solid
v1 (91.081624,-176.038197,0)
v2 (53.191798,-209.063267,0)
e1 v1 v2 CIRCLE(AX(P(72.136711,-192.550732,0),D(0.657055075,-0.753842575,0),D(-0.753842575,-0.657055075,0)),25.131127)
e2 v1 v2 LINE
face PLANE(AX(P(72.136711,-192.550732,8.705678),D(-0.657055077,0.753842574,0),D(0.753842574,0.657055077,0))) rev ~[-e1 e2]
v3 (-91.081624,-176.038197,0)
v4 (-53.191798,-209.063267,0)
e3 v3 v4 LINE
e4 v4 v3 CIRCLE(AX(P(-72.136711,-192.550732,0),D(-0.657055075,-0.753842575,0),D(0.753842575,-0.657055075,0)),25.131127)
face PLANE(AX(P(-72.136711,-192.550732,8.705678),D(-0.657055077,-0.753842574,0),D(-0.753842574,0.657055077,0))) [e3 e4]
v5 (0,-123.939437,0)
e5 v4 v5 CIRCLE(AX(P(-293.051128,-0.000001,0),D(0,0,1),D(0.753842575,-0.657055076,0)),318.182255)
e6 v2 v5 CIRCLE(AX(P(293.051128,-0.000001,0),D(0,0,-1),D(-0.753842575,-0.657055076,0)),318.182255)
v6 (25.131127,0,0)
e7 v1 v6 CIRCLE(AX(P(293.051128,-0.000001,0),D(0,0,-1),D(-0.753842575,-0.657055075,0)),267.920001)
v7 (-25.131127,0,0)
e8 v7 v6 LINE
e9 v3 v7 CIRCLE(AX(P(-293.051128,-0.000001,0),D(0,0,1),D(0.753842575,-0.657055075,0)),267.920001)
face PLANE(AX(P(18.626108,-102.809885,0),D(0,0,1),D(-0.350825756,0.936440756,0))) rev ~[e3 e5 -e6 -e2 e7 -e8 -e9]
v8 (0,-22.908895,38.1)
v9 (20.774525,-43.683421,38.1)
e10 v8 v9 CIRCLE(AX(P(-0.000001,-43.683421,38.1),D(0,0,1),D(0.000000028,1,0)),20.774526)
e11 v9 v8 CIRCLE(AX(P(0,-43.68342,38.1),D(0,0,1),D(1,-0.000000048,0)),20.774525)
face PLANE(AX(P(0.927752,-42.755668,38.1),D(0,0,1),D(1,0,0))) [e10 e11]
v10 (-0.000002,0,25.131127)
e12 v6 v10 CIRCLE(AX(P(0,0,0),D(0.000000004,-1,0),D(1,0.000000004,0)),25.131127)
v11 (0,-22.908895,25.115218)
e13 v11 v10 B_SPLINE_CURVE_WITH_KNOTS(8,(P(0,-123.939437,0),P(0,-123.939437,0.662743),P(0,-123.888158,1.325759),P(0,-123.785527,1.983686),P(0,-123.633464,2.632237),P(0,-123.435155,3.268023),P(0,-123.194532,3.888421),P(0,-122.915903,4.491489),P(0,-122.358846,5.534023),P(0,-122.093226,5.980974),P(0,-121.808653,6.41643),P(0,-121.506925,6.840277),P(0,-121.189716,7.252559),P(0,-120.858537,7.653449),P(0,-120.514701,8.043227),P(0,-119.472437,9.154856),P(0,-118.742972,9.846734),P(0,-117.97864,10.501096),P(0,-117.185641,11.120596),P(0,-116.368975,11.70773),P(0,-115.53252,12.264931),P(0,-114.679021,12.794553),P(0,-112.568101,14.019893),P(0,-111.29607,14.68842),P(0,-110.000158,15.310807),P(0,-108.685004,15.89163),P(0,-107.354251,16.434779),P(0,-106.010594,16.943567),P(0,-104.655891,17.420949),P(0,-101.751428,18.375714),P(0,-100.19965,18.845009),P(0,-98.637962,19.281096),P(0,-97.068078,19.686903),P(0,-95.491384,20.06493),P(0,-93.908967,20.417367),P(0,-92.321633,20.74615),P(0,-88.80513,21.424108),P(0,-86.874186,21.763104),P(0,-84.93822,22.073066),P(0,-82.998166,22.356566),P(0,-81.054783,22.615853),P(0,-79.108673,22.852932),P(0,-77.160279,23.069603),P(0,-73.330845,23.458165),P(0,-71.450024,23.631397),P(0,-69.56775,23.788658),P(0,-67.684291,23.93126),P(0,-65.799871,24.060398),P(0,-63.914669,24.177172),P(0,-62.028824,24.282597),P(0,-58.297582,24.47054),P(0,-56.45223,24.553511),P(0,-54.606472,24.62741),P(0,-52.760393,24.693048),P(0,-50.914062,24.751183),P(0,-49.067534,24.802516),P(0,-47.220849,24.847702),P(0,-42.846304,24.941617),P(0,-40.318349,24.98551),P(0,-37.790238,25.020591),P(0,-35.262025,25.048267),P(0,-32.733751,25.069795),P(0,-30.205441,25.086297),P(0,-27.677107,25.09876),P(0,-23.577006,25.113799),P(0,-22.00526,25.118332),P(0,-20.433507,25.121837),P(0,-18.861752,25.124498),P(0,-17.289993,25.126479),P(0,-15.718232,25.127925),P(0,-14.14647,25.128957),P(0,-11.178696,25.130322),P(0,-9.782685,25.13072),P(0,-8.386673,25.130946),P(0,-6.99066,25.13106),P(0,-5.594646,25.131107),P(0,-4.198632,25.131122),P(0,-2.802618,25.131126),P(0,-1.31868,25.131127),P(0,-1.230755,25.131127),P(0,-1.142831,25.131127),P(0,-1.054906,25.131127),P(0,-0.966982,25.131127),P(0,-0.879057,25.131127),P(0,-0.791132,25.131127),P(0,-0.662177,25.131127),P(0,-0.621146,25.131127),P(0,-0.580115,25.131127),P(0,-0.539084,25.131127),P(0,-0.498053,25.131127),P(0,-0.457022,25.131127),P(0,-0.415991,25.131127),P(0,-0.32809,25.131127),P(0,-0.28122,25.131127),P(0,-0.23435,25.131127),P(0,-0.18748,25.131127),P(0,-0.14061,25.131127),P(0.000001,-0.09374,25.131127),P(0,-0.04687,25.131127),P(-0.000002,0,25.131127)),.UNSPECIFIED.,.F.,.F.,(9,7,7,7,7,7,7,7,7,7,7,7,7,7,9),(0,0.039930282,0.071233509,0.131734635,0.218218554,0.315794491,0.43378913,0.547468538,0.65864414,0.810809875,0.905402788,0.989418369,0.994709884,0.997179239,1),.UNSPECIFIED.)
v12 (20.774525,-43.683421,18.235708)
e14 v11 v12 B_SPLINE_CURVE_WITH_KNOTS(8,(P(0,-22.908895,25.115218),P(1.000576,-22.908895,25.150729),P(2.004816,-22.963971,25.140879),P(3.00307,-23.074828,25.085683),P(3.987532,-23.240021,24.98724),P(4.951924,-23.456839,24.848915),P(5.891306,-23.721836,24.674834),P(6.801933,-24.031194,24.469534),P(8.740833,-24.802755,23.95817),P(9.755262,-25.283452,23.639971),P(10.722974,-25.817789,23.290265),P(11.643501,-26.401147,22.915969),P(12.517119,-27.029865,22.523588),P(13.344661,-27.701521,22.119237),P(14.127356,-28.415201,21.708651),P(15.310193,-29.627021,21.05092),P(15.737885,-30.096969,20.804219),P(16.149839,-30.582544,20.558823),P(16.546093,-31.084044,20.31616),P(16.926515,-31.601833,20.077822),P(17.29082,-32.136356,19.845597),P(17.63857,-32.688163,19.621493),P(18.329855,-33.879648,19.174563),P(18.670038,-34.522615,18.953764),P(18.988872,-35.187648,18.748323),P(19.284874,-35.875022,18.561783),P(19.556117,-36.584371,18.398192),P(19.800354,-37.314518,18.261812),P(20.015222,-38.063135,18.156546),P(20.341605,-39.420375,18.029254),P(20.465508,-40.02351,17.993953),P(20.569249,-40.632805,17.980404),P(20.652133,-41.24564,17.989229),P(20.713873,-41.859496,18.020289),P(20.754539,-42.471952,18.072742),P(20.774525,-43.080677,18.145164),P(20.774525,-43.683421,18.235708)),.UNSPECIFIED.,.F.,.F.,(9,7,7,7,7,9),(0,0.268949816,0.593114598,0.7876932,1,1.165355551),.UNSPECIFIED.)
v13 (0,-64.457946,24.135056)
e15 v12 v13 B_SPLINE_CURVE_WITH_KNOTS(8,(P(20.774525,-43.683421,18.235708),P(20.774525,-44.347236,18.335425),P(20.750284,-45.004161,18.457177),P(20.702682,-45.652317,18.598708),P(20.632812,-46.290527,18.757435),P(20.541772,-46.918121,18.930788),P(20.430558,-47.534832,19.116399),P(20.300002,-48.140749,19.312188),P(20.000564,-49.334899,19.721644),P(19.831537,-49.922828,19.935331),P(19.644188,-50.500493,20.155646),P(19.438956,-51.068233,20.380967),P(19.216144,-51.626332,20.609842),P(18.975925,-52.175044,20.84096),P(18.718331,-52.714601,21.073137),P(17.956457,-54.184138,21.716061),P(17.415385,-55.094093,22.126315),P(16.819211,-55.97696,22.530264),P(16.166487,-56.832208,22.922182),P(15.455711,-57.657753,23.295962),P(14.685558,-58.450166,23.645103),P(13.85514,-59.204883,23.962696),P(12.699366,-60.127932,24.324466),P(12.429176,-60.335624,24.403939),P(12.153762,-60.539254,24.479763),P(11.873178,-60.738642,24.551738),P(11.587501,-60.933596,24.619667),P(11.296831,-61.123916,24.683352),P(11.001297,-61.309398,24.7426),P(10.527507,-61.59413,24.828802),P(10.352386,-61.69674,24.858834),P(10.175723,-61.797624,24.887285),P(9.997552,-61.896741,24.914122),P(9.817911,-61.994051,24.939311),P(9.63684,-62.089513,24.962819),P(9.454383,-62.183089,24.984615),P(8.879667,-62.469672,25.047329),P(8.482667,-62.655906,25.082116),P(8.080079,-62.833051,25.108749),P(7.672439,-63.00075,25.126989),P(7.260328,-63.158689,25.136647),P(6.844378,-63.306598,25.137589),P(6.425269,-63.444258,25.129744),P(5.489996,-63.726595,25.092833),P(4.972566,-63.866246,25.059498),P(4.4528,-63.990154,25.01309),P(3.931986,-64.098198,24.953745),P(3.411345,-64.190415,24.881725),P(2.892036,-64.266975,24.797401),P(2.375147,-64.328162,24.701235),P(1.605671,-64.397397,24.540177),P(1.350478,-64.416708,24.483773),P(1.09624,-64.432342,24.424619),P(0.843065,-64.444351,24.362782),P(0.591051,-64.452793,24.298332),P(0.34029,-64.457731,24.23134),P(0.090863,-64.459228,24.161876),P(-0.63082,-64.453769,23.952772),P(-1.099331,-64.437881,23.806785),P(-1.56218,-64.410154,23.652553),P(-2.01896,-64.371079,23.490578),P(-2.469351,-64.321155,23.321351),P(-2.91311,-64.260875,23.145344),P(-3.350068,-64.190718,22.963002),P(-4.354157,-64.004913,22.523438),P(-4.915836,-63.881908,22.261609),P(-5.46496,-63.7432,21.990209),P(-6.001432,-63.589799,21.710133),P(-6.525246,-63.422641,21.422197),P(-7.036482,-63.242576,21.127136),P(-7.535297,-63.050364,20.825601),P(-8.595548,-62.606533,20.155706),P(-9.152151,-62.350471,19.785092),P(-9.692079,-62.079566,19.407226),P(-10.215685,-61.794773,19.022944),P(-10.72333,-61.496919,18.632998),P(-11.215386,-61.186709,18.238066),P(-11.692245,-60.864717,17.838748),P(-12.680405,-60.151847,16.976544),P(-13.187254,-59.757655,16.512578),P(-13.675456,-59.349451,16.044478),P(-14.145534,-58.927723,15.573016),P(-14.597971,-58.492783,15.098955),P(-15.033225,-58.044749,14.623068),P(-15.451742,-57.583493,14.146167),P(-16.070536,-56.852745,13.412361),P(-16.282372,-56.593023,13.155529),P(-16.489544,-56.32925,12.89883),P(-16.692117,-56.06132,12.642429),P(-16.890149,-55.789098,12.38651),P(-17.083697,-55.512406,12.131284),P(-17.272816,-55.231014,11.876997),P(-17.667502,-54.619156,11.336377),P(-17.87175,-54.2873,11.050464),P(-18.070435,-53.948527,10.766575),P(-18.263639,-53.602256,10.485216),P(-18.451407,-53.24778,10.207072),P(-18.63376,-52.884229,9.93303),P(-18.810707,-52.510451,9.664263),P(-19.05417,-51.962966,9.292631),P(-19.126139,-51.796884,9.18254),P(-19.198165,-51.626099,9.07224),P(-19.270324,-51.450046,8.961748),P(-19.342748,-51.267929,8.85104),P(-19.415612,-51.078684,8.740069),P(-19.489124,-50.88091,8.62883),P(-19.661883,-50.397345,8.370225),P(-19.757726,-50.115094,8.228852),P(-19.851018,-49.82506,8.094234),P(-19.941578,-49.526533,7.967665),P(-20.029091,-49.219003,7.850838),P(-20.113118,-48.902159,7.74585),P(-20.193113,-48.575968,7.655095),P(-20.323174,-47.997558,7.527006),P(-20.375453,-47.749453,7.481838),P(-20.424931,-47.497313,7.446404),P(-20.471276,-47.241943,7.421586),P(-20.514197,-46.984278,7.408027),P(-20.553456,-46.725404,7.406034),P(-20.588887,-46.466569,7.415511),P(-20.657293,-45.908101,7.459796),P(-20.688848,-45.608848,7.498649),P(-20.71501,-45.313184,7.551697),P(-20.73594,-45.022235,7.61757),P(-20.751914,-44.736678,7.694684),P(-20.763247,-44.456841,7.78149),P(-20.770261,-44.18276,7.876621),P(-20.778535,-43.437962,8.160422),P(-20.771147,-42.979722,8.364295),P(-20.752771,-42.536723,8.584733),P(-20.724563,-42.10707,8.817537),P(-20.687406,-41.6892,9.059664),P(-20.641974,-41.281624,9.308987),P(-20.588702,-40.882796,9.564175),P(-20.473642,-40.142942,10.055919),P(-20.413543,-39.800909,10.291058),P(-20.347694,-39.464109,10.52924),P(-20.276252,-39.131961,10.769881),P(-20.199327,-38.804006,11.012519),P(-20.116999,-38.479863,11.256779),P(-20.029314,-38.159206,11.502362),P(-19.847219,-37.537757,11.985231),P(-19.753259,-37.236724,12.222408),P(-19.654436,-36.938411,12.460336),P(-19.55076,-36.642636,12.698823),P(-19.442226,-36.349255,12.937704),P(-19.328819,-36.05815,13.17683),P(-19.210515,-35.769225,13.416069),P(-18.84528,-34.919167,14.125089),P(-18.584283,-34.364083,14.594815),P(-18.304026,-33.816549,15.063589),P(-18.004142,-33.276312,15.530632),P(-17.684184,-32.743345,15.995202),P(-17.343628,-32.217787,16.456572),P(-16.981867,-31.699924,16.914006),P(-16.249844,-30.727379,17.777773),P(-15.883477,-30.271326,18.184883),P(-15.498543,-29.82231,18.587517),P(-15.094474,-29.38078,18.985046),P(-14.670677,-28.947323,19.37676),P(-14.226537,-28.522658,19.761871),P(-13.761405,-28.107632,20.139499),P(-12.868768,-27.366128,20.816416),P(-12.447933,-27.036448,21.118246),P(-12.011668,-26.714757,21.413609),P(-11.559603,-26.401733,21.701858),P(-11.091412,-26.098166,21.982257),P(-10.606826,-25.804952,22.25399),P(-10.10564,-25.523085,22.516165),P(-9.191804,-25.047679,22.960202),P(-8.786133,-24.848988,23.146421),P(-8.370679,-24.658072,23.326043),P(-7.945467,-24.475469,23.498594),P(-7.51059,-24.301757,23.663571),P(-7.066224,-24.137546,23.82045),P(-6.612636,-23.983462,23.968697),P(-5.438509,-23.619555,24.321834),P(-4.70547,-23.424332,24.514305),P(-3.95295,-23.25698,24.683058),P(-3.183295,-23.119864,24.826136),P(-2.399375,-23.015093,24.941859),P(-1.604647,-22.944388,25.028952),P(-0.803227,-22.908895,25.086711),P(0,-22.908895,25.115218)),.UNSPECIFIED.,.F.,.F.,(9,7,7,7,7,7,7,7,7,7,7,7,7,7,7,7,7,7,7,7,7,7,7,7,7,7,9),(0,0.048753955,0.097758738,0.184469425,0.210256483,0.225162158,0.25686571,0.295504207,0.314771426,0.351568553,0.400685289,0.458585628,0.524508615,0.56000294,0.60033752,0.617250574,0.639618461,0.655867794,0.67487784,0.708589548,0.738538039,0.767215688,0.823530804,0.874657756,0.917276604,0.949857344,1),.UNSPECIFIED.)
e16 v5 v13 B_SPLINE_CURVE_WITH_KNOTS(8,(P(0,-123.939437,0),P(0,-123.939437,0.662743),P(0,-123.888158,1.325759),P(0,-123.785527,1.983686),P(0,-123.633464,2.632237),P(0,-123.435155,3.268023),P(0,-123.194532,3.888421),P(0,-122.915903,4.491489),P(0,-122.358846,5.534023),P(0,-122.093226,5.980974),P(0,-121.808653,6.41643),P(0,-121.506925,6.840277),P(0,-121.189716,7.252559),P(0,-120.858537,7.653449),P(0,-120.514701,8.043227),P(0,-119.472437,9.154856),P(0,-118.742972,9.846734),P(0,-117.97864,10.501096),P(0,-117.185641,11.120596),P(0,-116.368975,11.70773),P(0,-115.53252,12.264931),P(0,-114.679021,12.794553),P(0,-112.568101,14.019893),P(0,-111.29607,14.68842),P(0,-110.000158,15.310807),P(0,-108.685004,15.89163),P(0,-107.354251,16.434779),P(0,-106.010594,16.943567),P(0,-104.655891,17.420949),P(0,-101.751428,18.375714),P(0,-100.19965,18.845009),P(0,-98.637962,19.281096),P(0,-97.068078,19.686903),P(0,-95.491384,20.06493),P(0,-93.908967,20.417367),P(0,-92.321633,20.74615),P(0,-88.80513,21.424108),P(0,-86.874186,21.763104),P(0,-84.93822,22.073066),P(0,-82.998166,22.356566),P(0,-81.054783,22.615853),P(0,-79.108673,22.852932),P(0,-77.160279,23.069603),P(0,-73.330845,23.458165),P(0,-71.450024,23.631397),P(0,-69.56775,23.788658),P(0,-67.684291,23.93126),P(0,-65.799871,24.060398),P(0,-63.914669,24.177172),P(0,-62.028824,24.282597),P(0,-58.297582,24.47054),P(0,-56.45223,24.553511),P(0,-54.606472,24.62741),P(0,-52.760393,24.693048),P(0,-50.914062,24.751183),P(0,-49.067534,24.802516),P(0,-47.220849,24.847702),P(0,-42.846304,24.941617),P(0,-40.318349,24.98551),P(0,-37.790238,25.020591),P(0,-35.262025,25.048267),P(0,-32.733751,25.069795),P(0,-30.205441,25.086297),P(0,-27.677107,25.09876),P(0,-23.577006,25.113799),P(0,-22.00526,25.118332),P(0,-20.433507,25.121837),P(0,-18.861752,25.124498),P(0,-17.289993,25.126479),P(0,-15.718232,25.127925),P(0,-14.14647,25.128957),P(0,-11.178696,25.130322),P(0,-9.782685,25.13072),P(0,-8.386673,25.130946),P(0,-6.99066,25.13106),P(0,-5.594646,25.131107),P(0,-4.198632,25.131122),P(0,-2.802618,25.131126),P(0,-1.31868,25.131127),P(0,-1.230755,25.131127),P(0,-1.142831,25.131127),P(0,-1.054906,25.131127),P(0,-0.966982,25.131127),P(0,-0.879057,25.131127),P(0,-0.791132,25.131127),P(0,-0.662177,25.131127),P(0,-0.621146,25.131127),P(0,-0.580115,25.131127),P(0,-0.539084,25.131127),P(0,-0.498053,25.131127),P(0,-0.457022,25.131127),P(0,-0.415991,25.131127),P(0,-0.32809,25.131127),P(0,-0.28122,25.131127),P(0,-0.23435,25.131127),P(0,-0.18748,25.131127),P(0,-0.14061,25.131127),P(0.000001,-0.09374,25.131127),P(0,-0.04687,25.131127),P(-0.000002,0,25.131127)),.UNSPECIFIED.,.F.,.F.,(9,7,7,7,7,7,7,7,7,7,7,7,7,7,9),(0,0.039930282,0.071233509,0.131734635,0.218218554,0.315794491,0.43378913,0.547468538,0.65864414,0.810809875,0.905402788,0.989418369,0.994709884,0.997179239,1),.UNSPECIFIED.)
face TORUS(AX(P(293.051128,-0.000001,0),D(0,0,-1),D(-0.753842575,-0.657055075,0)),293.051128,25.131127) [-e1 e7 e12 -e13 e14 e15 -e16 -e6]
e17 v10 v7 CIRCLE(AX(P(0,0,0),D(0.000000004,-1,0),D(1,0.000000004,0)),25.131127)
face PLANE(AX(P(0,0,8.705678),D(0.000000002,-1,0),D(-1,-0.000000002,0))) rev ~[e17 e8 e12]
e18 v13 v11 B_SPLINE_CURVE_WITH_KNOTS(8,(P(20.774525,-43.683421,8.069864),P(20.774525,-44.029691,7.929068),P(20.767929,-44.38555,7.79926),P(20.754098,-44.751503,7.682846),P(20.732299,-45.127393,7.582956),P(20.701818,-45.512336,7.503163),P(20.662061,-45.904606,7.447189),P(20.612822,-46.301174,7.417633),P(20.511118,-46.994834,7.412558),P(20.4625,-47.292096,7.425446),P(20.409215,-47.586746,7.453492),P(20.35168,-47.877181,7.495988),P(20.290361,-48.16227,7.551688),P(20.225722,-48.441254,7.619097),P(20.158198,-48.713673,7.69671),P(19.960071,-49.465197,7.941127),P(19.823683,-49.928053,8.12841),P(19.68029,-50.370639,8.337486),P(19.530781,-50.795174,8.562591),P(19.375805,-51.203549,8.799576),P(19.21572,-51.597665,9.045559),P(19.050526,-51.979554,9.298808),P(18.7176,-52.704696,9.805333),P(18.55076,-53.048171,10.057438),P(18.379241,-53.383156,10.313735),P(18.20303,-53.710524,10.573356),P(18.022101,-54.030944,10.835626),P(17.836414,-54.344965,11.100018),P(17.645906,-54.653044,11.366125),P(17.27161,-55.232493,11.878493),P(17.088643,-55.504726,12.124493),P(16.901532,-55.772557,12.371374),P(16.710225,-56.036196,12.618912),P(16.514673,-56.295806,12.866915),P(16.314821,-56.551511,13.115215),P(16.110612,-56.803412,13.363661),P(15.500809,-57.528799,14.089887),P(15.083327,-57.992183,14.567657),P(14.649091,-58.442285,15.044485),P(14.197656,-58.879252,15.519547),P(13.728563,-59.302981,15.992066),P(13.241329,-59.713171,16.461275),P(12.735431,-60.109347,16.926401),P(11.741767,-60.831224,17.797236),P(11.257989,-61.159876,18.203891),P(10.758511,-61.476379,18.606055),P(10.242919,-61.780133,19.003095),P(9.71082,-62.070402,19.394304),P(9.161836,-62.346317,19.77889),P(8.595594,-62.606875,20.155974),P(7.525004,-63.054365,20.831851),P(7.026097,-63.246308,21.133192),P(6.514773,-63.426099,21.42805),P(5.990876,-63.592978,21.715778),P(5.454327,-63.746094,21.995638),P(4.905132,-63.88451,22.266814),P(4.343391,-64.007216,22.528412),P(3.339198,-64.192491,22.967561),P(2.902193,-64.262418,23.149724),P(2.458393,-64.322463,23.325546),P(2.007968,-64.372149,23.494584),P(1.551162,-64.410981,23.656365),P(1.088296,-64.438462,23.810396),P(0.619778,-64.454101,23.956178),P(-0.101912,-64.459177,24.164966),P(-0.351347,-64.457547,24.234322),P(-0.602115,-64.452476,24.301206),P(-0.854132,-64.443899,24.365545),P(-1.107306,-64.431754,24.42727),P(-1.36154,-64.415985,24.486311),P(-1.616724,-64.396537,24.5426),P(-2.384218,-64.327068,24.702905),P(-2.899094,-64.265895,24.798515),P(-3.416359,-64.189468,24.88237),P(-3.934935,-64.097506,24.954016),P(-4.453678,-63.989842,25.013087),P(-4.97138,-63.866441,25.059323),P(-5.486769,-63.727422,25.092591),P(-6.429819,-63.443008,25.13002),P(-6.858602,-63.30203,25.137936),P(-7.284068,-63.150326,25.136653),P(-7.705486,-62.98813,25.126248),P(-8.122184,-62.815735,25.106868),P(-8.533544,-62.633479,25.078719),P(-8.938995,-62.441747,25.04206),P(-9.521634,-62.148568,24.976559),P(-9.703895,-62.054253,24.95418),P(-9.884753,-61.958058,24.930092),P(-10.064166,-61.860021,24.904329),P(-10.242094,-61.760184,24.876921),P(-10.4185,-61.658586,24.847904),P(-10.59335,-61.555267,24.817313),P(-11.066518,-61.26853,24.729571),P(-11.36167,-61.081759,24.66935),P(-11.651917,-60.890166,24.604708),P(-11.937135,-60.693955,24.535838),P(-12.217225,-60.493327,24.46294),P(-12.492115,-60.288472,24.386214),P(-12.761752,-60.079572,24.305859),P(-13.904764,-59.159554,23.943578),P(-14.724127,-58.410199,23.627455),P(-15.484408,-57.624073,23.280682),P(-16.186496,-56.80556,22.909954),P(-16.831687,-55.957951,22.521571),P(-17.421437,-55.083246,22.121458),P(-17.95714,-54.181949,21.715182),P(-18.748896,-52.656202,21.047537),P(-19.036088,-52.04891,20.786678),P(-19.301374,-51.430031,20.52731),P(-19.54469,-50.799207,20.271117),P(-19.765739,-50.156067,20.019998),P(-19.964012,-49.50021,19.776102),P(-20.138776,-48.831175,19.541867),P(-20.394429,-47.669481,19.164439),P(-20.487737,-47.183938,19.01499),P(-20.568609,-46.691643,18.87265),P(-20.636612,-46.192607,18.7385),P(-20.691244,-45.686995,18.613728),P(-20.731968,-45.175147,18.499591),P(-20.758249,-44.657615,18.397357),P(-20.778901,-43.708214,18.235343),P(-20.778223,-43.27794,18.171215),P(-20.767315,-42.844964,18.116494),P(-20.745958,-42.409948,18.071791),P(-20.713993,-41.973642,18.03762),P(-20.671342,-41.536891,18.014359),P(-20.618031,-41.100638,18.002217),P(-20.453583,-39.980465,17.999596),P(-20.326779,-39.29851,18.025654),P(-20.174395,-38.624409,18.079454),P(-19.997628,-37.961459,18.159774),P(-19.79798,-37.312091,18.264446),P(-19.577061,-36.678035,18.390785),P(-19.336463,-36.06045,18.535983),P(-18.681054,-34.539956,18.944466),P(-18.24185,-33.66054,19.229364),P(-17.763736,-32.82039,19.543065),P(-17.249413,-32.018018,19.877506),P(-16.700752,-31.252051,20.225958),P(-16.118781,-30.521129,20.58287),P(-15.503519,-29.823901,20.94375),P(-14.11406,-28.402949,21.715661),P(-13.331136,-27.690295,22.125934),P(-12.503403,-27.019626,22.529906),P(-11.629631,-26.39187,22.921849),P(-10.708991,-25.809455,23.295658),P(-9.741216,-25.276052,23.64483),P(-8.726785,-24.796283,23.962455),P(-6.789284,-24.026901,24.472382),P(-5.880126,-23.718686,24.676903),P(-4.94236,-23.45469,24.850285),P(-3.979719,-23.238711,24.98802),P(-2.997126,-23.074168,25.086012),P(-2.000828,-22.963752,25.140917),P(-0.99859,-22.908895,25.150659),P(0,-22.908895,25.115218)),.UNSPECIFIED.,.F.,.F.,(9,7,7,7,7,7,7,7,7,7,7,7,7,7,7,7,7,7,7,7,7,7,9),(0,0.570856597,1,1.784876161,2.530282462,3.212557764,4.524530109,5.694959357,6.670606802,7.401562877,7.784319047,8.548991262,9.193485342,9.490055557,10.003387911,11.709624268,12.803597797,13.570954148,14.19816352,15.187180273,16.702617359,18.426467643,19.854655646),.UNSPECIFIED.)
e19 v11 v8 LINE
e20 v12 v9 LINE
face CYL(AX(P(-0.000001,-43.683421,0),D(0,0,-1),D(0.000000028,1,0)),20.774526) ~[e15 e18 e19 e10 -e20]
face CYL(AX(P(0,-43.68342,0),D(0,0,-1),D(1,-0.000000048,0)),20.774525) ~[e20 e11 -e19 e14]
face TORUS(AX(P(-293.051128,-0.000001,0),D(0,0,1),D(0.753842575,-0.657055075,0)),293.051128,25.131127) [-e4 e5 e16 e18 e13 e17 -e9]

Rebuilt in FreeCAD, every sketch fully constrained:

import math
import FreeCAD as App
import Part
import Sketcher

V = App.Vector
Q = App.Units.Quantity

doc = App.newDocument("Part")
body = doc.addObject("PartDesign::Body", "Body")

# Sketch on XY plane
sketch1 = doc.addObject("Sketcher::SketchObject", "Sketch")
body.addObject(sketch1)
sketch1.AttachmentSupport = (doc.XY_Plane, [""])
sketch1.MapMode = "FlatFace"
sketch1.addGeometry([
    Part.ArcOfCircle(Part.Circle(V(0, -44, 0), V(0, 0, 1), 21), math.radians(90), math.radians(360)),
    Part.ArcOfCircle(Part.Circle(V(0, -44, 0), V(0, 0, 1), 21), math.radians(0), math.radians(90)),
], False)
sketch1.addConstraint([
    Sketcher.Constraint("Tangent", 0, 1, 1, 2),
    Sketcher.Constraint("Coincident", 1, 1, 0, 2),
    Sketcher.Constraint("PointOnObject", 0, 3, -2),
    Sketcher.Constraint("PointOnObject", 0, 1, -2),
    Sketcher.Constraint("Horizontal", 0, 3, 1, 1),
    Sketcher.Constraint("Radius", 0, 20.774526),
    Sketcher.Constraint("DistanceY", 0, 3, -1, 1, 43.683421),
])
pad1 = doc.addObject("PartDesign::Pad", "Pad")
body.addObject(pad1)
pad1.Profile = sketch1
pad1.Length = Q("1.5 in")

# Sketch on XZ plane
sketch2 = doc.addObject("Sketcher::SketchObject", "Sketch001")
body.addObject(sketch2)
sketch2.AttachmentSupport = (doc.XZ_Plane, [""])
sketch2.MapMode = "FlatFace"
sketch2.addGeometry([
    Part.LineSegment(V(-25, 0, 0), V(25, 0, 0)),
    Part.ArcOfCircle(Part.Circle(V(0, 0, 0), V(0, 0, 1), 25), math.radians(0), math.radians(180)),
], False)
sketch2.addConstraint([
    Sketcher.Constraint("Coincident", 0, 1, 1, 2),
    Sketcher.Constraint("Coincident", 1, 1, 0, 2),
    Sketcher.Constraint("Horizontal", 0),
    Sketcher.Constraint("Coincident", 1, 3, -1, 1),
    Sketcher.Constraint("PointOnObject", 0, 1, -1),
    Sketcher.Constraint("Radius", 1, 25.131127),
])

# Sketch on XY plane
sketch3 = doc.addObject("Sketcher::SketchObject", "Sketch002")
body.addObject(sketch3)
sketch3.AttachmentSupport = (doc.XY_Plane, [""])
sketch3.MapMode = "FlatFace"
sketch3.addGeometry(Part.ArcOfCircle(Part.Circle(V(-293, 0, 0), V(0, 0, 1), 293), math.radians(-41), math.radians(0)), False)
sketch3.addConstraint([
    Sketcher.Constraint("Coincident", 0, 2, -1, 1),
    Sketcher.Constraint("PointOnObject", 0, 3, -1),
    Sketcher.Constraint("Radius", 0, 293.051128),
    Sketcher.Constraint("DistanceX", 0, 1, -1, 1, 72.136711),
])
doc.recompute()

additivepipe = doc.addObject("PartDesign::AdditivePipe", "AdditivePipe")
body.addObject(additivepipe)
additivepipe.Profile = sketch2
additivepipe.Spine = (sketch3, ["Edge1"])

# Sketch on XZ plane
sketch4 = doc.addObject("Sketcher::SketchObject", "Sketch003")
body.addObject(sketch4)
sketch4.AttachmentSupport = (doc.XZ_Plane, [""])
sketch4.MapMode = "FlatFace"
sketch4.addGeometry([
    Part.LineSegment(V(25, 0, 0), V(-25, 0, 0)),
    Part.ArcOfCircle(Part.Circle(V(0, 0, 0), V(0, 0, 1), 25), math.radians(0), math.radians(180)),
], False)
sketch4.addConstraint([
    Sketcher.Constraint("Coincident", 0, 1, 1, 1),
    Sketcher.Constraint("Coincident", 1, 2, 0, 2),
    Sketcher.Constraint("Horizontal", 0),
    Sketcher.Constraint("Coincident", 1, 3, -1, 1),
    Sketcher.Constraint("PointOnObject", 0, 1, -1),
    Sketcher.Constraint("Radius", 1, 25.131127),
])

# Sketch on XY plane
sketch5 = doc.addObject("Sketcher::SketchObject", "Sketch004")
body.addObject(sketch5)
sketch5.AttachmentSupport = (doc.XY_Plane, [""])
sketch5.MapMode = "FlatFace"
sketch5.addGeometry(Part.ArcOfCircle(Part.Circle(V(293, 0, 0), V(0, 0, 1), 293), math.radians(180), math.radians(221)), False)
sketch5.addConstraint([
    Sketcher.Constraint("Coincident", 0, 1, -1, 1),
    Sketcher.Constraint("PointOnObject", 0, 3, -1),
    Sketcher.Constraint("Radius", 0, 293.051128),
    Sketcher.Constraint("DistanceX", -1, 1, 0, 2, 72.136711),
])
doc.recompute()

additivepipe2 = doc.addObject("PartDesign::AdditivePipe", "AdditivePipe001")
body.addObject(additivepipe2)
additivepipe2.Profile = sketch4
additivepipe2.Spine = (sketch5, ["Edge1"])

doc.recompute()
